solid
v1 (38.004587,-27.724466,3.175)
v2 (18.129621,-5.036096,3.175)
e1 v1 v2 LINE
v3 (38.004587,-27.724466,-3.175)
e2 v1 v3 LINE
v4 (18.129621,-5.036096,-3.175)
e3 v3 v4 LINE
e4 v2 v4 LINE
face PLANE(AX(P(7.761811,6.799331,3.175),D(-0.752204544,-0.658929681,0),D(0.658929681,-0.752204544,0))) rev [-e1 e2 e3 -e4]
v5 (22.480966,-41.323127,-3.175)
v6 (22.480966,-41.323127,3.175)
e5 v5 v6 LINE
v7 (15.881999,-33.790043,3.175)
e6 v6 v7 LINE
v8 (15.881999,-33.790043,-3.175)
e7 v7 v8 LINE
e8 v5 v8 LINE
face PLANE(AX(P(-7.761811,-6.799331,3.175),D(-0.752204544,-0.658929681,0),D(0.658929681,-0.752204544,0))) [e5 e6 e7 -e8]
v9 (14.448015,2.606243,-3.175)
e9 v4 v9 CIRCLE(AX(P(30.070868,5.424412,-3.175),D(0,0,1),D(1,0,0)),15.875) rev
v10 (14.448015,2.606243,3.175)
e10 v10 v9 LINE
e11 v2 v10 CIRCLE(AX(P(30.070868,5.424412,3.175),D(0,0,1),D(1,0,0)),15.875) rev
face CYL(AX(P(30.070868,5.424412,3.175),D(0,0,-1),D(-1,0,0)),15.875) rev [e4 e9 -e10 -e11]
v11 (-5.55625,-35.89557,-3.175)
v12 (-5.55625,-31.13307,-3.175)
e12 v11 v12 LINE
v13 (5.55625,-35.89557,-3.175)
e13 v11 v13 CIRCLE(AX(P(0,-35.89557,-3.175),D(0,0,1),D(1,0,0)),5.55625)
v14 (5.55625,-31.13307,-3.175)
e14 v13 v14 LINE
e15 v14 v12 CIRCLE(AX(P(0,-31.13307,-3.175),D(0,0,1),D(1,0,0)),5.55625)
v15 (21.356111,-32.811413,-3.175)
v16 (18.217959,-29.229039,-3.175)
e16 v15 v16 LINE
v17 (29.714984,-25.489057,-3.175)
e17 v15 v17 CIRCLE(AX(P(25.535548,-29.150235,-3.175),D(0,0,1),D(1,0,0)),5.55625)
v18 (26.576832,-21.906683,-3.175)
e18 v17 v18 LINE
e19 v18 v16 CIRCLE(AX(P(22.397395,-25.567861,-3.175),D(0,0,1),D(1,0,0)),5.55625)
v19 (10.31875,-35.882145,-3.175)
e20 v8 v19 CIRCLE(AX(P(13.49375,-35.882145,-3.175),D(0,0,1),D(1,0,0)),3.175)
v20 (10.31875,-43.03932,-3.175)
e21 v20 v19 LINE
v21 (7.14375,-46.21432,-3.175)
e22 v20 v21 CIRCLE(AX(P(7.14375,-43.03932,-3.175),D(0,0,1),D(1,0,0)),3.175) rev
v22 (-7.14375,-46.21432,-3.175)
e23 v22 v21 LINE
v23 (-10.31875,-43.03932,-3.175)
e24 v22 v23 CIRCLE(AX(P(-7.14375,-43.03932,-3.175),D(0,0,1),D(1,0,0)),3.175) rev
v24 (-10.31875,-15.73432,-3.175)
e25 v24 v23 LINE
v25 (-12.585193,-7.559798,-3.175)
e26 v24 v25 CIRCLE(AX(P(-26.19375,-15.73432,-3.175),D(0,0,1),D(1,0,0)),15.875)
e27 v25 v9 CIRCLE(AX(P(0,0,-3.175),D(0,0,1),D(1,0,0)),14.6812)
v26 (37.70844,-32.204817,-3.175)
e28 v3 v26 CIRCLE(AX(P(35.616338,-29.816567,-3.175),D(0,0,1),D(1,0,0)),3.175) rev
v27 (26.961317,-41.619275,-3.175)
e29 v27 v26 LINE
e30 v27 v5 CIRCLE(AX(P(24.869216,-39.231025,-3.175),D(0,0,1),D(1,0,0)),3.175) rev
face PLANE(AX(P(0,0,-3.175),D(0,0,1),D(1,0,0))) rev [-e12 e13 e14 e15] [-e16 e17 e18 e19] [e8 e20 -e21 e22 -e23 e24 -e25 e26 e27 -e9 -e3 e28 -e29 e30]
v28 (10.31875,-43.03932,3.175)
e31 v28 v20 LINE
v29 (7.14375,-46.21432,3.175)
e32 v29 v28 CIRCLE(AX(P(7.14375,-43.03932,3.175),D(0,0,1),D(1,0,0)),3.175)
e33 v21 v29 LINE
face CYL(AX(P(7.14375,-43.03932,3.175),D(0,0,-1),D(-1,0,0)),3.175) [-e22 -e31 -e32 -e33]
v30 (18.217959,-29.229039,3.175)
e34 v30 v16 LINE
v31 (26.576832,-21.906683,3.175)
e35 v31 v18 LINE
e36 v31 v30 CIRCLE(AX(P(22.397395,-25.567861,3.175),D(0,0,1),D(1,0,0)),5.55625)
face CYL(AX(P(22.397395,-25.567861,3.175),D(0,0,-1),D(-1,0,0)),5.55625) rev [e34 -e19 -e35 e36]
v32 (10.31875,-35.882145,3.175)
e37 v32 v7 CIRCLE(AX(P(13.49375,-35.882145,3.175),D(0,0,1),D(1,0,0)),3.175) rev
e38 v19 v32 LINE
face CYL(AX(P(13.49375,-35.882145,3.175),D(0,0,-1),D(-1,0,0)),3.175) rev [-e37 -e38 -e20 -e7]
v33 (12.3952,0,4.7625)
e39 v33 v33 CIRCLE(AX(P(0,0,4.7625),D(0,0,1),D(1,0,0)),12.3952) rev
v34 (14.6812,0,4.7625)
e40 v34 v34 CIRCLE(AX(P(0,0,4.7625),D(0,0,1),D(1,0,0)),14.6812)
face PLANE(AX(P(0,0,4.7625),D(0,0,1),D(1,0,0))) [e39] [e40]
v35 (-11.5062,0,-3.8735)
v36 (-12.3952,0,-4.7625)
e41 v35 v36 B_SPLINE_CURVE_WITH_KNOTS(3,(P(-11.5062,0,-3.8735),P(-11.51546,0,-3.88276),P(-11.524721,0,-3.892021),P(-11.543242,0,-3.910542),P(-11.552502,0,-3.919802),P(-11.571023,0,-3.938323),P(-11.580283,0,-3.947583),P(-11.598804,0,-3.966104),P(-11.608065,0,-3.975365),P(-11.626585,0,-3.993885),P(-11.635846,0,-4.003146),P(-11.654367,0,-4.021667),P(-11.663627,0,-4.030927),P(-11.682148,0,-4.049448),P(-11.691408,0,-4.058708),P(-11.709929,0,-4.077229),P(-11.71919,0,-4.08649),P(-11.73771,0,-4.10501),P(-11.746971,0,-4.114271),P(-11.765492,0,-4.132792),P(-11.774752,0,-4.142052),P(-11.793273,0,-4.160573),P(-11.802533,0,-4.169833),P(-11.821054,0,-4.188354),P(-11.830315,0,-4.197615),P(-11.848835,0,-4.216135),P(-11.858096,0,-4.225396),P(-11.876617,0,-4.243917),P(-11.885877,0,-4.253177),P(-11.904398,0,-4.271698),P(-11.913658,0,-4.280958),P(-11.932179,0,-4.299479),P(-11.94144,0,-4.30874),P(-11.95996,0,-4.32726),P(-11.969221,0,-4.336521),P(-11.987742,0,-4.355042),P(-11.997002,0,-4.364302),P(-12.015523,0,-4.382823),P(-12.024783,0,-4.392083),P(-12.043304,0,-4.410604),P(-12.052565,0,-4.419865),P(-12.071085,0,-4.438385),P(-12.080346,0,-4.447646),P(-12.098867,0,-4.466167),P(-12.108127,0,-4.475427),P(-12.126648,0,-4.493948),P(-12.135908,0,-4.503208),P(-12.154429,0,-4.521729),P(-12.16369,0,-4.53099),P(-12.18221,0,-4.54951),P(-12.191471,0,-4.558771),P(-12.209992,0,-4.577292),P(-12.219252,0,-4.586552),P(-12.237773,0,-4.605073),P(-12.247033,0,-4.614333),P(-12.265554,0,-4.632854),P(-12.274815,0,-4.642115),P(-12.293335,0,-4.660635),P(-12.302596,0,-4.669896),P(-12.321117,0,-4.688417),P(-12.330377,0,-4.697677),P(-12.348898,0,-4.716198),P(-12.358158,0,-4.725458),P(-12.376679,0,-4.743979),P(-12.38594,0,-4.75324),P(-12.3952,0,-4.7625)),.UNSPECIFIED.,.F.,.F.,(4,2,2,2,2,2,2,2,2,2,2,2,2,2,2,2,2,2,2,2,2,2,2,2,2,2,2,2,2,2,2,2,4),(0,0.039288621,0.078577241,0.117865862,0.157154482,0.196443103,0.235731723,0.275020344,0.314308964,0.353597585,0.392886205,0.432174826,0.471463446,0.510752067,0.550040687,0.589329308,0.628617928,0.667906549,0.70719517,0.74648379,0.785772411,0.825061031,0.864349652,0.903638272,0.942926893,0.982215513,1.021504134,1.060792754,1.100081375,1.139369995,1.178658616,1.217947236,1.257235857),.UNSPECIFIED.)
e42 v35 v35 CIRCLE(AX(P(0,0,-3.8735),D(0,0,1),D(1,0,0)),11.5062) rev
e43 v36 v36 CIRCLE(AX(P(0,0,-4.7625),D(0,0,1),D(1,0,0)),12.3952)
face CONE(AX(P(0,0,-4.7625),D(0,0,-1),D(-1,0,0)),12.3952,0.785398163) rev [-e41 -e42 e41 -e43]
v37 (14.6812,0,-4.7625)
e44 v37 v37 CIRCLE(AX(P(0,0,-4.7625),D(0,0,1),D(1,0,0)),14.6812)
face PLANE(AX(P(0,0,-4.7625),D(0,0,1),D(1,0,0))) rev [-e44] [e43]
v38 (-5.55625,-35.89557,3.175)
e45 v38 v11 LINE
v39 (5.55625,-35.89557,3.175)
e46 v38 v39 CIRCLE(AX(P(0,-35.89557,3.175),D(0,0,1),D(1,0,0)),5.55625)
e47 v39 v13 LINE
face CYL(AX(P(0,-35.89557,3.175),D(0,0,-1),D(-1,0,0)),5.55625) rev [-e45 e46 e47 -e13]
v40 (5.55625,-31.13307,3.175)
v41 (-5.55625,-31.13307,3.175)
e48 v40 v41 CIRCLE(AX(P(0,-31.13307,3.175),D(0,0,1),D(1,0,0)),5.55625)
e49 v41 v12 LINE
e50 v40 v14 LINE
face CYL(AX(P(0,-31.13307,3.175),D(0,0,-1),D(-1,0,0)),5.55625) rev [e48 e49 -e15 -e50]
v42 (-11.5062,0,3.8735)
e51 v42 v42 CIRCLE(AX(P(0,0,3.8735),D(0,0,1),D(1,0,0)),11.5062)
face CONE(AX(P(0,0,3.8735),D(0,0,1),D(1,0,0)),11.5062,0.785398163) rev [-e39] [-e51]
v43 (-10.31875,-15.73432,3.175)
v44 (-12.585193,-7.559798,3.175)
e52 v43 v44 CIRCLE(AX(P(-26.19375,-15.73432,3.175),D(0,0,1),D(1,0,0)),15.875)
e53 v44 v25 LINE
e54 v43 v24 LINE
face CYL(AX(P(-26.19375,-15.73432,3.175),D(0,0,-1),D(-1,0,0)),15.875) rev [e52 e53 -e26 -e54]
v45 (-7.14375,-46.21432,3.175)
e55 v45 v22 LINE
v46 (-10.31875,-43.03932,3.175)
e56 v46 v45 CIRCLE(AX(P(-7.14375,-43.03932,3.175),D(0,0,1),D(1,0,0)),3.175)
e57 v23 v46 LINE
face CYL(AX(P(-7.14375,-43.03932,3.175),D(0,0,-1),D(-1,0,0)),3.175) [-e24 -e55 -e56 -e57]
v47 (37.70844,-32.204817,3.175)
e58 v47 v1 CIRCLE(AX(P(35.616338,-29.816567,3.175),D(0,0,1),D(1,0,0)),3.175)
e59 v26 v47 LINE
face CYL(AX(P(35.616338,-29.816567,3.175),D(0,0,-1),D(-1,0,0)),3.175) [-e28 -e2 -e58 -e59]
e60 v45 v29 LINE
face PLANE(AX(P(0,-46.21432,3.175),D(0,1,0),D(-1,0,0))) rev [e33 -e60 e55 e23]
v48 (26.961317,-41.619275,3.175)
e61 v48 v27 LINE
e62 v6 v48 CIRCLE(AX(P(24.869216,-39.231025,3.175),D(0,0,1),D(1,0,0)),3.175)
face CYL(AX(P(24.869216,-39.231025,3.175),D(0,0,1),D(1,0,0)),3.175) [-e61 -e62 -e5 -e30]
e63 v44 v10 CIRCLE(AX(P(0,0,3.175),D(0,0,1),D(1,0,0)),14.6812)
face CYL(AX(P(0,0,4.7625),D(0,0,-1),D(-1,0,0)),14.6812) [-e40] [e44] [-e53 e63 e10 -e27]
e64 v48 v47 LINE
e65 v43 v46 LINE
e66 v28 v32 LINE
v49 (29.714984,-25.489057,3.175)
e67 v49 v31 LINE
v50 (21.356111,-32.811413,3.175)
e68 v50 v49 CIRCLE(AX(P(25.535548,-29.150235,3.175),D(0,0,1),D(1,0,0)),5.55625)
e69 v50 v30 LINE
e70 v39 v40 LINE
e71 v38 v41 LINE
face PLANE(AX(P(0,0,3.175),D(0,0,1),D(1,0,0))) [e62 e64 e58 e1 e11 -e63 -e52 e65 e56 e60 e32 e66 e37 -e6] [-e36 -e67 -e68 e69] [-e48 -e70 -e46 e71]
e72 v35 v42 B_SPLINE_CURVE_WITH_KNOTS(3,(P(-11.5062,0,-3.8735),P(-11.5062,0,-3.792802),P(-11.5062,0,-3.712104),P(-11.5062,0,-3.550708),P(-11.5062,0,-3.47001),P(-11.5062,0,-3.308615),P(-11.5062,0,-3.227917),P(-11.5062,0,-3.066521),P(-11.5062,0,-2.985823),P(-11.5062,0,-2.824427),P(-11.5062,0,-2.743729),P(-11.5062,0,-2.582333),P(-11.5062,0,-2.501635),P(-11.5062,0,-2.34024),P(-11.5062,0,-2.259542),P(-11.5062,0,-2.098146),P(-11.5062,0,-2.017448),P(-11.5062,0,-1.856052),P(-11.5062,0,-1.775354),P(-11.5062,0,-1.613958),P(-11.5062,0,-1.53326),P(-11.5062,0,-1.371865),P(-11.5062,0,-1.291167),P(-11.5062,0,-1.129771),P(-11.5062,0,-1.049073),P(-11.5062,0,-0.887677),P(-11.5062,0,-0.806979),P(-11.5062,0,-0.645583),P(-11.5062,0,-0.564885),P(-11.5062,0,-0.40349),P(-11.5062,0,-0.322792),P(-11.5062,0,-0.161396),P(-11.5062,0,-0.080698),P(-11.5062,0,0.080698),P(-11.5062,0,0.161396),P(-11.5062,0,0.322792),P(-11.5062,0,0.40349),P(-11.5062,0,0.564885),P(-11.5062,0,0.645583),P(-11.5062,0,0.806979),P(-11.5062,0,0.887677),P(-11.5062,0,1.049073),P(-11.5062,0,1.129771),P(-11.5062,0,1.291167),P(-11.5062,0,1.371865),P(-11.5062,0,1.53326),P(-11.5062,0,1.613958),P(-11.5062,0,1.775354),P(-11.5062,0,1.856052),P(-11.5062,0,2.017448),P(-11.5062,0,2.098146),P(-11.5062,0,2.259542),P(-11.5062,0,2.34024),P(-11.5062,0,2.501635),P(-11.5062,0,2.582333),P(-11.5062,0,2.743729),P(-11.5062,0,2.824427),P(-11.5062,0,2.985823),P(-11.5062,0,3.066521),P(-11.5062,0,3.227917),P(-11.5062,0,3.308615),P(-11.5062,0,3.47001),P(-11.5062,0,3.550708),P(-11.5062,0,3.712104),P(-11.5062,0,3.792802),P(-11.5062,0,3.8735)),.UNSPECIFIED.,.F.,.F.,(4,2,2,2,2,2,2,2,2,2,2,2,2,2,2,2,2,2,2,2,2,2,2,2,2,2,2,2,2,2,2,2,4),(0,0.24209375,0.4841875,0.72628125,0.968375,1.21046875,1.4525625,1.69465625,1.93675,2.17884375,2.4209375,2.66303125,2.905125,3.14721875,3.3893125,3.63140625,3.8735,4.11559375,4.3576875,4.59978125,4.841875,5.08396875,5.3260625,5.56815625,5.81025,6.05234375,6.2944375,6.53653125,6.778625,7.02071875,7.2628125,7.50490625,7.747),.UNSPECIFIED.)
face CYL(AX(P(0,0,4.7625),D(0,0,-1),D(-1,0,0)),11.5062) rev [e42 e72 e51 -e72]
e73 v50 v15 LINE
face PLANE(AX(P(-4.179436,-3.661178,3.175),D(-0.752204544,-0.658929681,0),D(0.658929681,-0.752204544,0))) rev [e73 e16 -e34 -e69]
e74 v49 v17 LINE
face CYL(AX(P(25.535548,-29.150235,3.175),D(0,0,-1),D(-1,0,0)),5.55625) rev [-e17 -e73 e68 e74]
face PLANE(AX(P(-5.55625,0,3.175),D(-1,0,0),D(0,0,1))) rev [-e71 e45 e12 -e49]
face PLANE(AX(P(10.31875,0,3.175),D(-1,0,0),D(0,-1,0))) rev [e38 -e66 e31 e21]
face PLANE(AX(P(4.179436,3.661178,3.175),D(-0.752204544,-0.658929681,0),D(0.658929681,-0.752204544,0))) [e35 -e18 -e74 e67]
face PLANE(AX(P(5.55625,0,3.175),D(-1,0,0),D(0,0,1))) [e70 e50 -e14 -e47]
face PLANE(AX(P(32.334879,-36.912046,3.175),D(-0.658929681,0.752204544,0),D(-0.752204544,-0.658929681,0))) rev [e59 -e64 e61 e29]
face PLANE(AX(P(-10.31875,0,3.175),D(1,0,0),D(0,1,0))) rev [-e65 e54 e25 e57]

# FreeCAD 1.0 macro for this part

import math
import FreeCAD as App
import Part
import Sketcher

V = App.Vector
Q = App.Units.Quantity


def edges_at(feature, points):
    """Names of the edges that pass closest to the given points."""
    edges = feature.Shape.Edges
    near = lambda p: min(range(len(edges)), key=lambda i: edges[i].distToShape(Part.Vertex(*p))[0])
    return sorted({f"Edge{near(p) + 1}" for p in points})

doc = App.newDocument("Part")
params = doc.addObject("Spreadsheet::Sheet", "Params")
for row, (alias, value) in enumerate([
    ("sketch1_diameter", "0.906 in"),
    ("sketch1_radius", "0.578 in"),
    ("pad1_length", "0.375 in"),
    ("sketch2_diameter", "0.906 in"),
    ("sketch2_height", "1.2 in"),
    ("sketch2_radius", "0.625 in"),
    ("sketch2_radius2", "0.578 in"),
    ("sketch2_radius3", "0.21875 in"),
    ("pad2_length", "0.25 in"),
    ("fillet_radius", "0.125 in"),
    ("chamfer_size", "0.035 in"),
], start=1):
    params.set(f"A{row}", alias)
    params.set(f"B{row}", "=" + value)
    params.setAlias(f"B{row}", alias)

body = doc.addObject("PartDesign::Body", "Body")

# Sketch on XY plane
sketch1 = body.newObject("Sketcher::SketchObject", "Sketch")
sketch1.AttachmentSupport = (doc.getObject("XY_Plane"), [""])
sketch1.MapMode = "FlatFace"
sketch1.addGeometry([
    Part.ArcOfCircle(Part.Circle(V(0, 0, 0), V(0, 0, 1), 15), math.radians(10), math.radians(211)),
    Part.ArcOfCircle(Part.Circle(V(0, 0, 0), V(0, 0, 1), 15), math.radians(-149), math.radians(10)),
    Part.Circle(V(0, 0, 0), V(0, 0, 1), 12),
], False)
sketch1.addConstraint([
    Sketcher.Constraint("Tangent", 0, 1, 1, 2),
    Sketcher.Constraint("Coincident", 1, 1, 0, 2),
    Sketcher.Constraint("Coincident", 0, 3, -1, 1),
    Sketcher.Constraint("Coincident", 2, 3, -1, 1),
    Sketcher.Constraint("Diameter", 2, Q("0.906 in")),
    Sketcher.Constraint("Radius", 0, Q("0.578 in")),
    Sketcher.Constraint("DistanceX", 1, 1, 0, 1, 27.033208),
    Sketcher.Constraint("DistanceY", 1, 1, 0, 1, 10.166041),
])
sketch1.setExpression("Constraints[4]", "Params.sketch1_diameter")
sketch1.setExpression("Constraints[5]", "Params.sketch1_radius")
pad1 = body.newObject("PartDesign::Pad", "Pad")
pad1.Profile = sketch1
pad1.setExpression("Length", "Params.pad1_length")
pad1.Midplane = True

# Sketch on XY plane
sketch2 = body.newObject("Sketcher::SketchObject", "Sketch001")
sketch2.AttachmentSupport = (doc.getObject("XY_Plane"), [""])
sketch2.MapMode = "FlatFace"
sketch2.addGeometry([
    Part.ArcOfCircle(Part.Circle(V(-26.2, -15.7, 0), V(0, 0, 1), 15.9), math.radians(0), math.radians(31)),  # 0
    Part.LineSegment(V(-10.3, -15.7, 0), V(-10.3, -46.2, 0)),  # 1
    Part.LineSegment(V(-10.3, -46.2, 0), V(10.3, -46.2, 0)),  # 2
    Part.LineSegment(V(10.3, -46.2, 0), V(10.3, -27.4, 0)),  # 3
    Part.LineSegment(V(10.3, -27.4, 0), V(24.6, -43.7, 0)),  # 4
    Part.LineSegment(V(24.6, -43.7, 0), V(40.1, -30.1, 0)),  # 5
    Part.LineSegment(V(40.1, -30.1, 0), V(18.1, -5, 0)),  # 6
    Part.ArcOfCircle(Part.Circle(V(30.1, 5.4, 0), V(0, 0, 1), 15.9), math.radians(-170), math.radians(-139)),  # 7
    Part.ArcOfCircle(Part.Circle(V(0, 0, 0), V(0, 0, 1), 14.7), math.radians(10), math.radians(211)),  # 8
    Part.LineSegment(V(5.6, -31.1, 0), V(5.6, -35.9, 0)),  # 9
    Part.ArcOfCircle(Part.Circle(V(0, -35.9, 0), V(0, 0, 1), 5.6), math.radians(180), math.radians(360)),  # 10
    Part.LineSegment(V(-5.6, -35.9, 0), V(-5.6, -31.1, 0)),  # 11
    Part.ArcOfCircle(Part.Circle(V(0, -31.1, 0), V(0, 0, 1), 5.6), math.radians(0), math.radians(180)),  # 12
    Part.LineSegment(V(26.6, -21.9, 0), V(29.7, -25.5, 0)),  # 13
    Part.ArcOfCircle(Part.Circle(V(25.5, -29.2, 0), V(0, 0, 1), 5.6), math.radians(-139), math.radians(41)),  # 14
    Part.LineSegment(V(21.4, -32.8, 0), V(18.2, -29.2, 0)),  # 15
    Part.ArcOfCircle(Part.Circle(V(22.4, -25.6, 0), V(0, 0, 1), 5.6), math.radians(41), math.radians(221)),  # 16
    Part.Circle(V(0, 0, 0), V(0, 0, 1), 11.5),  # 17
], False)
sketch2.addConstraint([
    Sketcher.Constraint("Tangent", 0, 1, 1, 1),
    Sketcher.Constraint("Coincident", 1, 2, 2, 1),
    Sketcher.Constraint("Coincident", 2, 2, 3, 1),
    Sketcher.Constraint("Coincident", 3, 2, 4, 1),
    Sketcher.Constraint("Coincident", 4, 2, 5, 1),
    Sketcher.Constraint("Coincident", 5, 2, 6, 1),
    Sketcher.Constraint("Tangent", 6, 2, 7, 2),
    Sketcher.Constraint("Tangent", 7, 1, 8, 1),
    Sketcher.Constraint("Tangent", 8, 2, 0, 2),
    Sketcher.Constraint("Tangent", 9, 2, 10, 2),
    Sketcher.Constraint("Tangent", 10, 1, 11, 1),
    Sketcher.Constraint("Tangent", 11, 2, 12, 2),
    Sketcher.Constraint("Tangent", 12, 1, 9, 1),
    Sketcher.Constraint("Tangent", 13, 2, 14, 2),
    Sketcher.Constraint("Tangent", 14, 1, 15, 1),
    Sketcher.Constraint("Tangent", 15, 2, 16, 2),
    Sketcher.Constraint("Tangent", 16, 1, 13, 1),
    Sketcher.Constraint("Vertical", 1),
    Sketcher.Constraint("Horizontal", 2),
    Sketcher.Constraint("Vertical", 3),
    Sketcher.Constraint("Vertical", 9),
    Sketcher.Constraint("Vertical", 11),
    Sketcher.Constraint("Coincident", 8, 3, -1, 1),
    Sketcher.Constraint("Coincident", 17, 3, -1, 1),
    Sketcher.Constraint("Equal", 0, 7),
    Sketcher.Constraint("Equal", 12, 14),
    Sketcher.Constraint("Equal", 14, 16),
    Sketcher.Constraint("PointOnObject", 10, 3, -2),
    Sketcher.Constraint("Perpendicular", 4, 5),
    Sketcher.Constraint("Perpendicular", 5, 6),
    Sketcher.Constraint("Parallel", 6, 13),
    Sketcher.Constraint("Diameter", 17, Q("0.906 in")),
    Sketcher.Constraint("DistanceY", 1, 2, 1, 1, Q("1.2 in")),
    Sketcher.Constraint("Radius", 0, Q("0.625 in")),
    Sketcher.Constraint("Radius", 8, Q("0.578 in")),
    Sketcher.Constraint("Radius", 10, Q("0.21875 in")),
    Sketcher.Constraint("DistanceX", 2, 1, 2, 2, Q("0.8125 in")),
    Sketcher.Constraint("DistanceY", 9, 2, 9, 1, Q("0.1875 in")),
    Sketcher.Constraint("Distance", 5, Q("0.8125 in")),
    Sketcher.Constraint("Distance", 6, Q("1.3125 in")),
    Sketcher.Constraint("Distance", 13, Q("0.1875 in")),
    Sketcher.Constraint("DistanceX", 0, 3, -1, 1, Q("1.03125 in")),
    Sketcher.Constraint("DistanceY", 1, 2, 10, 3, Q("0.40625 in")),
    Sketcher.Constraint("DistanceY", 3, 1, 3, 2, 18.775033),
    Sketcher.Constraint("DistanceX", -1, 1, 7, 3, 30.070868),
    Sketcher.Constraint("DistanceY", 16, 3, -1, 1, 25.567861),
    Sketcher.Constraint("DistanceX", -1, 1, 14, 1, 21.356111),
])
sketch2.setExpression("Constraints[31]", "Params.sketch2_diameter")
sketch2.setExpression("Constraints[32]", "Params.sketch2_height")
sketch2.setExpression("Constraints[33]", "Params.sketch2_radius")
sketch2.setExpression("Constraints[34]", "Params.sketch2_radius2")
sketch2.setExpression("Constraints[35]", "Params.sketch2_radius3")
pad2 = body.newObject("PartDesign::Pad", "Pad001")
pad2.Profile = sketch2
pad2.setExpression("Length", "Params.pad2_length")
pad2.Midplane = True
doc.recompute()

fillet = body.newObject("PartDesign::Fillet", "Fillet")
fillet.Base = (pad2, edges_at(pad2, [
    (-10.319, -46.214, 0),
    (10.319, -46.214, 0),
    (10.319, -27.439, 0),
    (24.573, -43.711, 0),
    (40.097, -30.113, 0),
]))
fillet.setExpression("Radius", "Params.fillet_radius")
doc.recompute()

chamfer = body.newObject("PartDesign::Chamfer", "Chamfer")
chamfer.Base = (fillet, edges_at(fillet, [(11.506, 0, -4.763), (11.506, 0, 4.763)]))
chamfer.setExpression("Size", "Params.chamfer_size")

doc.recompute()
